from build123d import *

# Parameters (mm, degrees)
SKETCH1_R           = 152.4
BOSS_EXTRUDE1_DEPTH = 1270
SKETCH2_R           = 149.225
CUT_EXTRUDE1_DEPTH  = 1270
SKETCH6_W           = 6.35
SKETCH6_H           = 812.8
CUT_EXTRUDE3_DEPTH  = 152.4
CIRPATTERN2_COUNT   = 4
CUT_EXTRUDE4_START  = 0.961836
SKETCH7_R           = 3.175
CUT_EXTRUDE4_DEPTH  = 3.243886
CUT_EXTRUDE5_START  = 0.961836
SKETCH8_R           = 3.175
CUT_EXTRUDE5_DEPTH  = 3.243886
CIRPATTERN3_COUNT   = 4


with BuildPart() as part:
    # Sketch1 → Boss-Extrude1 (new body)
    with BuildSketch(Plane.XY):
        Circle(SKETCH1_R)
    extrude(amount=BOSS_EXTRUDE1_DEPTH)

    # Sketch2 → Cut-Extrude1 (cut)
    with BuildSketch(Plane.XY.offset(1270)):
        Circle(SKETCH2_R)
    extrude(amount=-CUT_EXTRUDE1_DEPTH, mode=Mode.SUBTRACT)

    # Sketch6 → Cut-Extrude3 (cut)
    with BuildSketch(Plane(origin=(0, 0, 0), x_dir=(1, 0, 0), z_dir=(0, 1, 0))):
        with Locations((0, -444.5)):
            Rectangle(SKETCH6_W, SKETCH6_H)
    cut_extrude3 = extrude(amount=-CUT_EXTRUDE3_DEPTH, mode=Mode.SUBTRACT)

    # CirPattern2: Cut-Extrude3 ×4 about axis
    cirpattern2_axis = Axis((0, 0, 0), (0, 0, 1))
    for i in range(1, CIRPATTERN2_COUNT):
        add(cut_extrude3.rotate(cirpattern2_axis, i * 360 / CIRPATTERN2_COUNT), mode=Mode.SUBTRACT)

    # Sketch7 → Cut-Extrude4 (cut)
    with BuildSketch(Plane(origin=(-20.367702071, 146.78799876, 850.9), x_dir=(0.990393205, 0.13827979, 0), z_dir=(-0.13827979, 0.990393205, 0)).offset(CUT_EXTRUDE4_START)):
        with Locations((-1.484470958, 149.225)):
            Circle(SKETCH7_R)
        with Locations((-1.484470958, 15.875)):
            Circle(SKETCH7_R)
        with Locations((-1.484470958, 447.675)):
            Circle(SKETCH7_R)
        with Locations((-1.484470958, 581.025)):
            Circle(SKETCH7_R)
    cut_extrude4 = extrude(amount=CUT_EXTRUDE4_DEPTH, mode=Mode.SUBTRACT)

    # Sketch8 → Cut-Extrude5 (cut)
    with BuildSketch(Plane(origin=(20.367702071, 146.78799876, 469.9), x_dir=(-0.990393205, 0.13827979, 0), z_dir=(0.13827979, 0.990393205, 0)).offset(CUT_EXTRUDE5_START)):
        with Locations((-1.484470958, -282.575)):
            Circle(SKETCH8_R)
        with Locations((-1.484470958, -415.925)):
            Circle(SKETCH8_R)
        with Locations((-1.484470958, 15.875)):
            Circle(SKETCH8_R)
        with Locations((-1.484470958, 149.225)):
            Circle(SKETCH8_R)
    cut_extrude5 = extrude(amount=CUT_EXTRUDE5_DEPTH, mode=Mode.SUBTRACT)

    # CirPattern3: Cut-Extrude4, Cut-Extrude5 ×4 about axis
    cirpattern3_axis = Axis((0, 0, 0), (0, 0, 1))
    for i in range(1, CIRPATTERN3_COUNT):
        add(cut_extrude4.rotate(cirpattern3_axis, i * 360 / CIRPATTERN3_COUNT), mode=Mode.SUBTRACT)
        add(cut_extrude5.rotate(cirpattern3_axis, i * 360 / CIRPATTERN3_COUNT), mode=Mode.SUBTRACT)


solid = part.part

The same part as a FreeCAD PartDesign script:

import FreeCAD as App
import Part
import Sketcher
from FreeCAD import Vector
Q = App.Units.Quantity


def add_polygon(sketch, points):
    """Adds a closed chain of lines whose ends are joined by coincident constraints."""
    first, n = sketch.GeometryCount, len(points)
    for a, b in zip(points, points[1:] + points[:1]):
        sketch.addGeometry(Part.LineSegment(App.Vector(*a, 0), App.Vector(*b, 0)), False)
    for i in range(n):
        sketch.addConstraint(Sketcher.Constraint("Coincident", first + i, 2, first + (i + 1) % n, 1))

doc = App.newDocument("Part")
params = doc.addObject("Spreadsheet::Sheet", "Params")
for row, (alias, value) in enumerate([
    ("sketch1_diameter", "12 in"),
    ("pad1_length", "50 in"),
    ("sketch2_diameter", "11.75 in"),
    ("pocket1_length", "50 in"),
    ("sketch3_height", "32 in"),
    ("sketch3_width", "0.25 in"),
    ("pocket2_length", "6 in"),
    ("sketch4_diameter", "0.25 in"),
    ("pocket3_length", "3.243886 mm"),
    ("sketch5_diameter", "0.25 in"),
    ("pocket4_length", "3.243886 mm"),
], start=1):
    params.set(f"A{row}", alias)
    params.set(f"B{row}", "=" + value)
    params.setAlias(f"B{row}", alias)

body = doc.addObject("PartDesign::Body", "Body")

# Sketch on XY plane
sketch1 = body.newObject("Sketcher::SketchObject", "Sketch")
sketch1.AttachmentSupport = (doc.getObject("XY_Plane"), [""])
sketch1.MapMode = "FlatFace"
sketch1.addGeometry(Part.Circle(Vector(0, 0, 0), Vector(0, 0, 1), 152.4), False)
sketch1.addConstraint(Sketcher.Constraint("Coincident", 0, 3, -1, 1))
sketch1.addConstraint(Sketcher.Constraint("Diameter", 0, Q("12 in")))
sketch1.setExpression("Constraints[1]", "Params.sketch1_diameter")
pad1 = body.newObject("PartDesign::Pad", "Pad")
pad1.Profile = sketch1
pad1.setExpression("Length", "Params.pad1_length")

# Sketch on XY plane
sketch2 = body.newObject("Sketcher::SketchObject", "Sketch001")
sketch2.AttachmentSupport = (doc.getObject("XY_Plane"), [""])
sketch2.MapMode = "FlatFace"
sketch2.AttachmentOffset = App.Placement(Vector(0, 0, 50 * 25.4), App.Rotation())
sketch2.addGeometry(Part.Circle(Vector(0, 0, 0), Vector(0, 0, 1), 149.225), False)
sketch2.addConstraint(Sketcher.Constraint("Coincident", 0, 3, -1, 1))
sketch2.addConstraint(Sketcher.Constraint("Diameter", 0, Q("11.75 in")))
sketch2.setExpression("Constraints[1]", "Params.sketch2_diameter")
pocket1 = body.newObject("PartDesign::Pocket", "Pocket")
pocket1.Profile = sketch2
pocket1.setExpression("Length", "Params.pocket1_length")

# Sketch on XZ plane
sketch3 = body.newObject("Sketcher::SketchObject", "Sketch002")
sketch3.AttachmentSupport = (doc.getObject("XZ_Plane"), [""])
sketch3.MapMode = "FlatFace"
add_polygon(sketch3, [(-3.175, 38.1), (-3.175, 850.9), (3.175, 850.9), (3.175, 38.1)])  # lines 0-3
sketch3.addConstraint(Sketcher.Constraint("Vertical", 0))
sketch3.addConstraint(Sketcher.Constraint("Horizontal", 1))
sketch3.addConstraint(Sketcher.Constraint("Vertical", 2))
sketch3.addConstraint(Sketcher.Constraint("Horizontal", 3))
sketch3.addConstraint(Sketcher.Constraint("DistanceY", 0, 1, 0, 2, Q("32 in")))
sketch3.addConstraint(Sketcher.Constraint("DistanceX", 1, 1, 1, 2, Q("0.25 in")))
sketch3.addConstraint(Sketcher.Constraint("DistanceY", -1, 1, 0, 2, Q("33.5 in")))
sketch3.addConstraint(Sketcher.Constraint("DistanceX", 0, 2, -1, 1, Q("0.125 in")))
sketch3.setExpression("Constraints[8]", "Params.sketch3_height")
sketch3.setExpression("Constraints[9]", "Params.sketch3_width")
pocket2 = body.newObject("PartDesign::Pocket", "Pocket001")
pocket2.Profile = sketch3
pocket2.setExpression("Length", "Params.pocket2_length")
pocket2.Reversed = True
doc.recompute()

polarpattern = body.newObject("PartDesign::PolarPattern", "PolarPattern")
polarpattern.Originals = [pocket2]
polarpattern.Axis = (doc.getObject("Z_Axis"), [""])
polarpattern.Angle = 360
polarpattern.Occurrences = 4
body.Tip = polarpattern

# Sketch on an angled plane
sketch4 = body.newObject("Sketcher::SketchObject", "Sketch003")
sketch4.Placement = App.Placement(Vector(-20.500705, 147.740595, 850.9), App.Rotation(Vector(0.990393205, 0.13827979, 0), Vector(0, 0, -1.000000001), Vector(-0.13827979, 0.990393205, 0), "ZXY"))
sketch4.addGeometry(Part.Circle(Vector(-1.484471, 149.225, 0), Vector(0, 0, 1), 3.175), False)
sketch4.addGeometry(Part.Circle(Vector(-1.484471, 15.875, 0), Vector(0, 0, 1), 3.175), False)
sketch4.addGeometry(Part.Circle(Vector(-1.484471, 447.675001, 0), Vector(0, 0, 1), 3.175), False)
sketch4.addGeometry(Part.Circle(Vector(-1.484471, 581.025001, 0), Vector(0, 0, 1), 3.175), False)
sketch4.addConstraint(Sketcher.Constraint("Equal", 0, 1))
sketch4.addConstraint(Sketcher.Constraint("Equal", 1, 2))
sketch4.addConstraint(Sketcher.Constraint("Equal", 2, 3))
sketch4.addConstraint(Sketcher.Constraint("Vertical", 0, 3, 1, 3))
sketch4.addConstraint(Sketcher.Constraint("Vertical", 1, 3, 2, 3))
sketch4.addConstraint(Sketcher.Constraint("Vertical", 2, 3, 3, 3))
sketch4.addConstraint(Sketcher.Constraint("Diameter", 0, Q("0.25 in")))
sketch4.addConstraint(Sketcher.Constraint("DistanceY", 1, 3, 2, 3, Q("17 in")))
sketch4.addConstraint(Sketcher.Constraint("DistanceY", 0, 3, 3, 3, Q("17 in")))
sketch4.addConstraint(Sketcher.Constraint("DistanceY", 1, 3, 0, 3, Q("5.25 in")))
sketch4.addConstraint(Sketcher.Constraint("DistanceY", -1, 1, 0, 3, Q("5.875 in")))
sketch4.addConstraint(Sketcher.Constraint("DistanceX", 0, 3, -1, 1, 1.484471))
sketch4.setExpression("Constraints[6]", "Params.sketch4_diameter")
pocket3 = body.newObject("PartDesign::Pocket", "Pocket002")
pocket3.Profile = sketch4
pocket3.setExpression("Length", "Params.pocket3_length")
pocket3.Reversed = True

# Sketch on an angled plane
sketch5 = body.newObject("Sketcher::SketchObject", "Sketch004")
sketch5.Placement = App.Placement(Vector(20.500705, 147.740595, 469.9), App.Rotation(Vector(-0.990393205, 0.13827979, 0), Vector(0, 0, 1.000000001), Vector(0.13827979, 0.990393205, 0), "ZXY"))
sketch5.addGeometry(Part.Circle(Vector(-1.484471, -282.575, 0), Vector(0, 0, 1), 3.175), False)
sketch5.addGeometry(Part.Circle(Vector(-1.484471, -415.925001, 0), Vector(0, 0, 1), 3.175), False)
sketch5.addGeometry(Part.Circle(Vector(-1.484471, 15.875, 0), Vector(0, 0, 1), 3.175), False)
sketch5.addGeometry(Part.Circle(Vector(-1.484471, 149.225, 0), Vector(0, 0, 1), 3.175), False)
sketch5.addConstraint(Sketcher.Constraint("Equal", 0, 1))
sketch5.addConstraint(Sketcher.Constraint("Equal", 1, 2))
sketch5.addConstraint(Sketcher.Constraint("Equal", 2, 3))
sketch5.addConstraint(Sketcher.Constraint("Vertical", 0, 3, 1, 3))
sketch5.addConstraint(Sketcher.Constraint("Vertical", 1, 3, 2, 3))
sketch5.addConstraint(Sketcher.Constraint("Vertical", 2, 3, 3, 3))
sketch5.addConstraint(Sketcher.Constraint("Diameter", 0, Q("0.25 in")))
sketch5.addConstraint(Sketcher.Constraint("DistanceY", 1, 3, 2, 3, Q("17 in")))
sketch5.addConstraint(Sketcher.Constraint("DistanceY", 0, 3, 3, 3, Q("17 in")))
sketch5.addConstraint(Sketcher.Constraint("DistanceY", 1, 3, 0, 3, Q("5.25 in")))
sketch5.addConstraint(Sketcher.Constraint("DistanceY", 0, 3, -1, 1, Q("11.125 in")))
sketch5.addConstraint(Sketcher.Constraint("DistanceX", 0, 3, -1, 1, 1.484471))
sketch5.setExpression("Constraints[6]", "Params.sketch5_diameter")
pocket4 = body.newObject("PartDesign::Pocket", "Pocket003")
pocket4.Profile = sketch5
pocket4.setExpression("Length", "Params.pocket4_length")
pocket4.Reversed = True
doc.recompute()

polarpattern2 = body.newObject("PartDesign::PolarPattern", "PolarPattern001")
polarpattern2.Originals = [pocket3, pocket4]
polarpattern2.Axis = (doc.getObject("Z_Axis"), [""])
polarpattern2.Angle = 360
polarpattern2.Occurrences = 4
body.Tip = polarpattern2

doc.recompute()
